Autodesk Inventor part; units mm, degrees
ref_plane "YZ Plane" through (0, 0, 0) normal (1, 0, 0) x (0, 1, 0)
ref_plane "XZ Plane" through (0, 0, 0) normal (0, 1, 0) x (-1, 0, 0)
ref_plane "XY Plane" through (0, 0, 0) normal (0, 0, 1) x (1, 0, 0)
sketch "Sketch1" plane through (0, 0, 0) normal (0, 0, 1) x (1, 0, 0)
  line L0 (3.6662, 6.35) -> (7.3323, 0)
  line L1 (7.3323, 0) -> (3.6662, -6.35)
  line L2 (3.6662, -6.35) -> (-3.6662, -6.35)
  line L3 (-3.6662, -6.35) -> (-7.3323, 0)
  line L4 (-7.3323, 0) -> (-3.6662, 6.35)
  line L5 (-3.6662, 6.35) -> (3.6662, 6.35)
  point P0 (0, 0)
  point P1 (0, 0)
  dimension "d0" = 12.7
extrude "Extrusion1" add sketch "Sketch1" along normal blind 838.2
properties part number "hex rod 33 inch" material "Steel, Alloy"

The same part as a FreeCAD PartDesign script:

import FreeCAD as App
import Part
import Sketcher
Q = App.Units.Quantity

doc = App.newDocument("Part")
body = doc.addObject("PartDesign::Body", "Body")

# Sketch on XY plane
sketch1 = body.newObject("Sketcher::SketchObject", "Sketch")
sketch1.AttachmentSupport = (doc.getObject("XY_Plane"), [""])
sketch1.MapMode = "FlatFace"
sketch1.addGeometry([
    Part.LineSegment(App.Vector(7.3323, 0, 0), App.Vector(3.6662, 6.35, 0)),  # 0
    Part.LineSegment(App.Vector(3.6662, 6.35, 0), App.Vector(-3.6662, 6.35, 0)),  # 1
    Part.LineSegment(App.Vector(-3.6662, 6.35, 0), App.Vector(-7.3323, 0, 0)),  # 2
    Part.LineSegment(App.Vector(-7.3323, 0, 0), App.Vector(-3.6662, -6.35, 0)),  # 3
    Part.LineSegment(App.Vector(-3.6662, -6.35, 0), App.Vector(3.6662, -6.35, 0)),  # 4
    Part.LineSegment(App.Vector(3.6662, -6.35, 0), App.Vector(7.3323, 0, 0)),  # 5
], False)
sketch1.addConstraint([
    Sketcher.Constraint("Coincident", 0, 2, 1, 1),
    Sketcher.Constraint("Coincident", 1, 2, 2, 1),
    Sketcher.Constraint("Coincident", 2, 2, 3, 1),
    Sketcher.Constraint("Coincident", 3, 2, 4, 1),
    Sketcher.Constraint("Coincident", 4, 2, 5, 1),
    Sketcher.Constraint("Coincident", 5, 2, 0, 1),
    Sketcher.Constraint("Horizontal", 1),
    Sketcher.Constraint("Horizontal", 4),
    Sketcher.Constraint("Symmetric", 0, 2, 3, 2, -1, 1),
    Sketcher.Constraint("Symmetric", 2, 2, 5, 2, -1, 1),
    Sketcher.Constraint("PointOnObject", 2, 2, -1),
    Sketcher.Constraint("Parallel", 2, 5),
    Sketcher.Constraint("Vertical", 1, 2, 3, 2),
    Sketcher.Constraint("DistanceY", 3, 2, 1, 2, Q("0.5 in")),
    Sketcher.Constraint("Angle", 0, Q("119.9995 deg")),
    Sketcher.Constraint("DistanceX", 2, 2, 0, 2, Q("0.433 in")),
])
pad1 = body.newObject("PartDesign::Pad", "Pad")
pad1.Profile = sketch1
pad1.Length = Q("33 in")

doc.recompute()
